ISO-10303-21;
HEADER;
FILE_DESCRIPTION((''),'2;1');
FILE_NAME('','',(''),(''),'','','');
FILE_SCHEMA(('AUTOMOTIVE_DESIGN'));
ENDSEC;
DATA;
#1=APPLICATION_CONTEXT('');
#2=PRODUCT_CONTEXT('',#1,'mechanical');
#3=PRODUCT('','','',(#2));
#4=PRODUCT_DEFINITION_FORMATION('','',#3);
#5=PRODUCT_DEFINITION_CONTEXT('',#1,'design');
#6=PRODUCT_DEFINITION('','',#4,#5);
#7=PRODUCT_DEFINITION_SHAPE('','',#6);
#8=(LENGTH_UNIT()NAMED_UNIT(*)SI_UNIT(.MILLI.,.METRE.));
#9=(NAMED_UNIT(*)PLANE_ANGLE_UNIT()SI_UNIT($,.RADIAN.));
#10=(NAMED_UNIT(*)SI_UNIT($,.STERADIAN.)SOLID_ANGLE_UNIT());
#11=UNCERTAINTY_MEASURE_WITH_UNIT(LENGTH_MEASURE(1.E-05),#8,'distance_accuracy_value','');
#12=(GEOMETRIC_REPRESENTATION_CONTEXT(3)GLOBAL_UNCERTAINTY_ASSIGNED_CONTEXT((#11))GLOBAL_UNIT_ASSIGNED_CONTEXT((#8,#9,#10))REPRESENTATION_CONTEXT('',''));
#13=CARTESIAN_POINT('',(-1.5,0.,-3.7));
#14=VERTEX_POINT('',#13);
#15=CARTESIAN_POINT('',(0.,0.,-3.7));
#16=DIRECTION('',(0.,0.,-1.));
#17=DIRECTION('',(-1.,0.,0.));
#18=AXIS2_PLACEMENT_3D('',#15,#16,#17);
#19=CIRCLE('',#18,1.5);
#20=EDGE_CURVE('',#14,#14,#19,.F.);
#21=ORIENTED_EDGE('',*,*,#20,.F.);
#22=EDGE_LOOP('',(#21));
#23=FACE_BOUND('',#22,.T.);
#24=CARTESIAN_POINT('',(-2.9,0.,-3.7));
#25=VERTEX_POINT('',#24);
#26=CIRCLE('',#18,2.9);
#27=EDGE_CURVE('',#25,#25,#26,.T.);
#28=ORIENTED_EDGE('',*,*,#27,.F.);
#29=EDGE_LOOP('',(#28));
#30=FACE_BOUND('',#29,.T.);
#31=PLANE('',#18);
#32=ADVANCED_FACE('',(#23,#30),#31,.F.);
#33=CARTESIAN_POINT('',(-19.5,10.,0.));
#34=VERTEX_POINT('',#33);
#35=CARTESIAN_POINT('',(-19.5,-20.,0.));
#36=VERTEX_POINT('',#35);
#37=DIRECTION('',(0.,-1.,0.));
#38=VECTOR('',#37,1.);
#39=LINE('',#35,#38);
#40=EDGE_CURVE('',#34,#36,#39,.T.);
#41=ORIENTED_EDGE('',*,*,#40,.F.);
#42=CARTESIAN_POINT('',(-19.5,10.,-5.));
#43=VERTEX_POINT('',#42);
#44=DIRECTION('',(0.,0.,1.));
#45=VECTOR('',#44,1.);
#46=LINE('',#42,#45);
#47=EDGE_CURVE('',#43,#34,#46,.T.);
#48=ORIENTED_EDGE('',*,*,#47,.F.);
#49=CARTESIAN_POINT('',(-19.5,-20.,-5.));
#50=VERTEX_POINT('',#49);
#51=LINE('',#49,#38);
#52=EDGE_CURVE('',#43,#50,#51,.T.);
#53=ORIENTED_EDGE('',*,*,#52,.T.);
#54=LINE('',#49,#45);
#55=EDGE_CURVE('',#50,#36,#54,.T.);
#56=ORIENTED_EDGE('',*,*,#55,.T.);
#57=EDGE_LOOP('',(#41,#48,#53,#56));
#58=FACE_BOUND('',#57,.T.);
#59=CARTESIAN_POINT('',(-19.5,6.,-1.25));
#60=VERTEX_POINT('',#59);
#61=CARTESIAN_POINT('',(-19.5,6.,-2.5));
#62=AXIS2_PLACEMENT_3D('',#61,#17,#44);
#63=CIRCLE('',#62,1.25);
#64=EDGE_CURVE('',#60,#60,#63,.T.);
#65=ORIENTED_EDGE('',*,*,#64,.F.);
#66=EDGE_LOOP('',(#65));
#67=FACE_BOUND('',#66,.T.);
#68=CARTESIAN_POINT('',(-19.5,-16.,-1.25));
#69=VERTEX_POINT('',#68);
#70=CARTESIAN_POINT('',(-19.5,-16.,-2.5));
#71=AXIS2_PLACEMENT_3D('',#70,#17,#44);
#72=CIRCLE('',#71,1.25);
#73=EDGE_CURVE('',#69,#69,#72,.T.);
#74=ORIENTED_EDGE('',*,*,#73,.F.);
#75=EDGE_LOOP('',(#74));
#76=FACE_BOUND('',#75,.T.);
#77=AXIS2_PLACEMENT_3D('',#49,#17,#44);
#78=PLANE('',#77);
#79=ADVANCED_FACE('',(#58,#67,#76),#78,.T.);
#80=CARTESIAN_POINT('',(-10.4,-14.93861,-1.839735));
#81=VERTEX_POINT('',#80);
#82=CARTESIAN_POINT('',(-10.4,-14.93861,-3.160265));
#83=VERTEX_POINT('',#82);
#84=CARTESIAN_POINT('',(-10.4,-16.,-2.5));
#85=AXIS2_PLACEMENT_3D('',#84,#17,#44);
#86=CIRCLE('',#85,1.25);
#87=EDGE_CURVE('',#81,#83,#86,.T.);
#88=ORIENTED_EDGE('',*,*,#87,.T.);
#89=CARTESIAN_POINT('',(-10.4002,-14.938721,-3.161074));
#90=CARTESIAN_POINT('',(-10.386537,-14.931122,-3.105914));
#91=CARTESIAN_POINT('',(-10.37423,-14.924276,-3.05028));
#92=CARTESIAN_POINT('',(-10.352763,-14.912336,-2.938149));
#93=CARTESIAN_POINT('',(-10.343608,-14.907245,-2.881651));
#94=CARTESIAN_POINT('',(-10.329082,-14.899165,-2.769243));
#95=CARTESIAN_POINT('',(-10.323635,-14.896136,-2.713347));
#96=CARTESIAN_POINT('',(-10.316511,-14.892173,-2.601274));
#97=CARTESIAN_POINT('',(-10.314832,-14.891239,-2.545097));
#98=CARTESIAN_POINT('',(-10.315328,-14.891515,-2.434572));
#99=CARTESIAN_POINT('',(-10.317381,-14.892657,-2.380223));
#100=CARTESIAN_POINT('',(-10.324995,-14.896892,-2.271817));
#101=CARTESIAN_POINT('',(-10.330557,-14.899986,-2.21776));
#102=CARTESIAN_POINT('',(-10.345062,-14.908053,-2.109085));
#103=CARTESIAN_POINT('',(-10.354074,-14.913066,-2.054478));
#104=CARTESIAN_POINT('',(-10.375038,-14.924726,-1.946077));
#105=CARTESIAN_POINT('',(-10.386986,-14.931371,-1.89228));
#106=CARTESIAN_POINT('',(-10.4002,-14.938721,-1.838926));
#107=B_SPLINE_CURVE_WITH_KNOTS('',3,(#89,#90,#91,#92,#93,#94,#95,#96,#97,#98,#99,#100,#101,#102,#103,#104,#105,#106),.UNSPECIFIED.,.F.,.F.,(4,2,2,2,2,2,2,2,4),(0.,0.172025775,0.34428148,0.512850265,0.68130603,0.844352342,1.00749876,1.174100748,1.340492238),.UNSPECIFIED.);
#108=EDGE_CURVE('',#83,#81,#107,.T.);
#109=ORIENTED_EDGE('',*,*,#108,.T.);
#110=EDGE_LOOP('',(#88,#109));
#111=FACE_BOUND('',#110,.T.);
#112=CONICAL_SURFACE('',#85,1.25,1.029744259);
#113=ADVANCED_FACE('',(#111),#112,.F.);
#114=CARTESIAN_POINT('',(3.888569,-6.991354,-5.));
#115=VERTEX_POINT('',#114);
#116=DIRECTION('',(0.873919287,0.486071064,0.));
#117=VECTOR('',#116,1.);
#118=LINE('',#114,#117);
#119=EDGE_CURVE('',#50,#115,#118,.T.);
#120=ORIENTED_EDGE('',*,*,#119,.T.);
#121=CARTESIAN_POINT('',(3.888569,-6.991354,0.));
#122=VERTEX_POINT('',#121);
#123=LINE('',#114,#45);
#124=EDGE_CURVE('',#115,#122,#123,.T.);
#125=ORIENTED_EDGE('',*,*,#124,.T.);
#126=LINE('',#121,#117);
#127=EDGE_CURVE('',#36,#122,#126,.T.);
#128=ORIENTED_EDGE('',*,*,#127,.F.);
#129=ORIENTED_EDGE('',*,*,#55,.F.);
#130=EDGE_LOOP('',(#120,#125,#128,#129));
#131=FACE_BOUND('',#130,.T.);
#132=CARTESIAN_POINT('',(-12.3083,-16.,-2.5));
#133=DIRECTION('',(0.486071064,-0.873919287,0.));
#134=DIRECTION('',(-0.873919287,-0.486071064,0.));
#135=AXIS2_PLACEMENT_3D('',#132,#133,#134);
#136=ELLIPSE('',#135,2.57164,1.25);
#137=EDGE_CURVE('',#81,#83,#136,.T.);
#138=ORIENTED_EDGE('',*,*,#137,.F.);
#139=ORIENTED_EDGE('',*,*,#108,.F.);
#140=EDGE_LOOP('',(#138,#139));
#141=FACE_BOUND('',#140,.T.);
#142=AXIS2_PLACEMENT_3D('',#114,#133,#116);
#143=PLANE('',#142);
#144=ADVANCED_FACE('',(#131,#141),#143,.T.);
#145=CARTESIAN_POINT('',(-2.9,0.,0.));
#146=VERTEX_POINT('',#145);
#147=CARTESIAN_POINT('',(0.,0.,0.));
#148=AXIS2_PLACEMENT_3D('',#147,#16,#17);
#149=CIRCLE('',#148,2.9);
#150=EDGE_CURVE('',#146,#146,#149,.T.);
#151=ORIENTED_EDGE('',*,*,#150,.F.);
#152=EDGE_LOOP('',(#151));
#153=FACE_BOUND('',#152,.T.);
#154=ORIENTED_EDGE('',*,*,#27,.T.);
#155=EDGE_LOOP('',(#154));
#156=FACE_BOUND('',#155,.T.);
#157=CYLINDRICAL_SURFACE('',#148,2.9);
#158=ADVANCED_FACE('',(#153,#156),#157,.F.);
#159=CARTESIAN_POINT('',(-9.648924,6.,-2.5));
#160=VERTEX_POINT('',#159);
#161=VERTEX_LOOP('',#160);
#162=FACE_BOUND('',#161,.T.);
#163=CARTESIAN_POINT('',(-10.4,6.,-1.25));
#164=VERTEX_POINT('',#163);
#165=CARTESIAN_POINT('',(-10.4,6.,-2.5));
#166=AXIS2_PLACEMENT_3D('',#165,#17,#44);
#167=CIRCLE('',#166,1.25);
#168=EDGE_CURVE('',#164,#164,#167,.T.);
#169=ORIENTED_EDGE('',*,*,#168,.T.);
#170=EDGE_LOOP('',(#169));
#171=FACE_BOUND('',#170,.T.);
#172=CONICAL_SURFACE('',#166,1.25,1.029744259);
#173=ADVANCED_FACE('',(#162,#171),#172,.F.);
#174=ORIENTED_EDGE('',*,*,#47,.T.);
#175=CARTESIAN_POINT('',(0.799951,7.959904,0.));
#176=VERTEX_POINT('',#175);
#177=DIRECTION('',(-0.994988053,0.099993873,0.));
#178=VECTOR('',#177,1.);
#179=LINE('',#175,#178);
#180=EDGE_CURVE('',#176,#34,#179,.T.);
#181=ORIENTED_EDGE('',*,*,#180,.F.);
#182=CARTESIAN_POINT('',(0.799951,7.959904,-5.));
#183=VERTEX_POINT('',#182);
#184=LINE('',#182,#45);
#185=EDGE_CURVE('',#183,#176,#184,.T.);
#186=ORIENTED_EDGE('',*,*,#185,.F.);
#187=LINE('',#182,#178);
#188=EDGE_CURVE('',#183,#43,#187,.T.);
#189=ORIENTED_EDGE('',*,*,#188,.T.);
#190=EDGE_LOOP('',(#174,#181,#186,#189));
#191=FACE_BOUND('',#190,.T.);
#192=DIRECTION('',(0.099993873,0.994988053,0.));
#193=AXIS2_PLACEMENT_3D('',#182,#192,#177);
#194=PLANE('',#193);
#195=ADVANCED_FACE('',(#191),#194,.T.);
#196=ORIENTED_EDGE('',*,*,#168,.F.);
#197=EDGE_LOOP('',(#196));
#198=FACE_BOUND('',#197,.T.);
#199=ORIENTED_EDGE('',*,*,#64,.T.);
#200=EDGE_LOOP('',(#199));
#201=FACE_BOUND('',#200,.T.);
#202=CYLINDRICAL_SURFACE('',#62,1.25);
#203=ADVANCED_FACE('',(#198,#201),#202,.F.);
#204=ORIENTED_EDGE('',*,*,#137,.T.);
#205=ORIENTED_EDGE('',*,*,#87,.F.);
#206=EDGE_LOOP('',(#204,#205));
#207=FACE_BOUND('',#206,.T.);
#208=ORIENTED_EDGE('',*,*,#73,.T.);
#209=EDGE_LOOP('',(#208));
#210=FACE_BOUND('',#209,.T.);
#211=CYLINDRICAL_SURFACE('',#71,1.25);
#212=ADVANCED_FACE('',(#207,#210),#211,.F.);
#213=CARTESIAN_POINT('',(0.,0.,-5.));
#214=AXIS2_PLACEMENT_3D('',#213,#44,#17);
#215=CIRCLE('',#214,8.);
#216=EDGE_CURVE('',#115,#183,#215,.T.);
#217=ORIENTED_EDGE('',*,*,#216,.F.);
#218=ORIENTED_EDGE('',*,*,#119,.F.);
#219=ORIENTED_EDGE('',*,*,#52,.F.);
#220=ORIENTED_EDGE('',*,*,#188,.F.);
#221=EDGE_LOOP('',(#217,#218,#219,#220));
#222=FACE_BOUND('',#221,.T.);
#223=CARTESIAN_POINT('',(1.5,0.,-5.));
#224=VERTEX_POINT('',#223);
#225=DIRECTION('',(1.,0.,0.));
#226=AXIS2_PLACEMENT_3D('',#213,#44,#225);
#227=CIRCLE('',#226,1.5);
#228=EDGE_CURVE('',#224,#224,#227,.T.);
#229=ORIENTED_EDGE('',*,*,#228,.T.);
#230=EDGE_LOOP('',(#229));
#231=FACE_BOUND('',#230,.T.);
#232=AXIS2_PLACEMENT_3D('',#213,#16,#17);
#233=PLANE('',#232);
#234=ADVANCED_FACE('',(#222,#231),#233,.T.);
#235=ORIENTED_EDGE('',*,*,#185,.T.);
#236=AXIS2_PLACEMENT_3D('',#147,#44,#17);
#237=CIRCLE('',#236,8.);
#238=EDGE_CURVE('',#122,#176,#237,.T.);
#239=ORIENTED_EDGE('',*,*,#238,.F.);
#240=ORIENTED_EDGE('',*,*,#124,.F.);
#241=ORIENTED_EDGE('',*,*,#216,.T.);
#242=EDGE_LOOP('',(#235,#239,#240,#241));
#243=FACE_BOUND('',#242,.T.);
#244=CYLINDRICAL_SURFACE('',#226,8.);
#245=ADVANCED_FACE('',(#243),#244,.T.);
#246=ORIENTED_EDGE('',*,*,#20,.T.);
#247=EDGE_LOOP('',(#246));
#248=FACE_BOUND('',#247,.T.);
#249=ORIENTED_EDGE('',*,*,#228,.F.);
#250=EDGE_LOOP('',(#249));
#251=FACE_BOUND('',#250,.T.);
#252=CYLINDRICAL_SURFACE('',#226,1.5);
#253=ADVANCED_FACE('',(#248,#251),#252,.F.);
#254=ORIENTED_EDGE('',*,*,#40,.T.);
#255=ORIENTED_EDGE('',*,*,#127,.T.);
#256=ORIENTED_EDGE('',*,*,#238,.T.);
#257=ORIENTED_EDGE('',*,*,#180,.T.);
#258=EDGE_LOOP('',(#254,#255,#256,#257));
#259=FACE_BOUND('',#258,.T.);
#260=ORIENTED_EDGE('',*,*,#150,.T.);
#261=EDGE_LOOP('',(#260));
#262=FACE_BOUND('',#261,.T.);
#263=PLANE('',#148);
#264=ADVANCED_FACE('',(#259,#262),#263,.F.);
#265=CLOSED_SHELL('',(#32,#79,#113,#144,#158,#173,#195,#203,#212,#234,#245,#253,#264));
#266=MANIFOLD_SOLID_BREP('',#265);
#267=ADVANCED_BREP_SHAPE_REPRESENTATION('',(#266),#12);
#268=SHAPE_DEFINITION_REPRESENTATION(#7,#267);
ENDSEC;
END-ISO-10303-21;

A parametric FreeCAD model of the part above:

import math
import FreeCAD as App
import Part
import Sketcher
Q = App.Units.Quantity

doc = App.newDocument("Part")
params = doc.addObject("Spreadsheet::Sheet", "Params")
for row, (alias, value) in enumerate([
    ("sketch1_diameter", "3 mm"),
    ("sketch1_radius", "8 mm"),
    ("sketch1_height", "30 mm"),
    ("pad1_length", "5 mm"),
    ("sketch2_diameter", "5.8 mm"),
    ("sketch3_diameter", "2.5 mm"),
    ("hole_diameter", "2.5 mm"),
    ("hole_depth", "9.1 mm"),
], start=1):
    params.set(f"A{row}", alias)
    params.set(f"B{row}", "=" + value)
    params.setAlias(f"B{row}", alias)

body = doc.addObject("PartDesign::Body", "Body")

sketch1 = body.newObject("Sketcher::SketchObject", "Sketch")
sketch1.AttachmentSupport = (doc.getObject("XY_Plane"), [""])
sketch1.MapMode = "FlatFace"
sketch1.addGeometry([
    Part.LineSegment(App.Vector(0.8, 8, 0), App.Vector(-19.5, 10, 0)),
    Part.LineSegment(App.Vector(-19.5, 10, 0), App.Vector(-19.5, -20, 0)),
    Part.LineSegment(App.Vector(-19.5, -20, 0), App.Vector(3.9, -7, 0)),
    Part.ArcOfCircle(Part.Circle(App.Vector(0, 0, 0), App.Vector(0, 0, 1), 8), math.radians(-61), math.radians(84)),
    Part.Circle(App.Vector(0, 0, 0), App.Vector(0, 0, 1), 1.5),
], False)
sketch1.addConstraint([
    Sketcher.Constraint("Coincident", 0, 2, 1, 1),
    Sketcher.Constraint("Coincident", 1, 2, 2, 1),
    Sketcher.Constraint("Tangent", 2, 2, 3, 1),
    Sketcher.Constraint("Tangent", 3, 2, 0, 1),
    Sketcher.Constraint("Vertical", 1),
    Sketcher.Constraint("Coincident", 3, 3, -1, 1),
    Sketcher.Constraint("Coincident", 4, 3, -1, 1),
    Sketcher.Constraint("Diameter", 4, Q("3 mm")),
    Sketcher.Constraint("Radius", 3, Q("8 mm")),
    Sketcher.Constraint("DistanceY", 1, 2, 1, 1, Q("30 mm")),
    Sketcher.Constraint("DistanceY", -1, 1, 0, 2, Q("10 mm")),
    Sketcher.Constraint("DistanceX", 0, 2, -1, 1, Q("19.5 mm")),
])
sketch1.setExpression("Constraints[7]", "Params.sketch1_diameter")
sketch1.setExpression("Constraints[8]", "Params.sketch1_radius")
sketch1.setExpression("Constraints[9]", "Params.sketch1_height")
pad1 = body.newObject("PartDesign::Pad", "Pad")
pad1.Profile = sketch1
pad1.setExpression("Length", "Params.pad1_length")
pad1.Reversed = True

sketch2 = body.newObject("Sketcher::SketchObject", "Sketch001")
sketch2.AttachmentSupport = (doc.getObject("XY_Plane"), [""])
sketch2.MapMode = "FlatFace"
sketch2.AttachmentOffset = App.Placement(App.Vector(0, 0, -3.7), App.Rotation())
sketch2.addGeometry(Part.Circle(App.Vector(0, 0, 0), App.Vector(0, 0, 1), 2.9), False)
sketch2.addConstraint([
    Sketcher.Constraint("Coincident", 0, 3, -1, 1),
    Sketcher.Constraint("Diameter", 0, Q("5.8 mm")),
])
sketch2.setExpression("Constraints[1]", "Params.sketch2_diameter")
pocket1 = body.newObject("PartDesign::Pocket", "Pocket")
pocket1.Profile = sketch2
pocket1.Type = "ThroughAll"
pocket1.Reversed = True

sketch3 = body.newObject("Sketcher::SketchObject", "Sketch002")
sketch3.AttachmentSupport = (doc.getObject("YZ_Plane"), [""])
sketch3.MapMode = "FlatFace"
sketch3.AttachmentOffset = App.Placement(App.Vector(0, 0, -19.5), App.Rotation())
sketch3.addGeometry([
    Part.Circle(App.Vector(6, -2.5, 0), App.Vector(0, 0, 1), 1.2),
    Part.Circle(App.Vector(-16, -2.5, 0), App.Vector(0, 0, 1), 1.2),
], False)
sketch3.addConstraint([
    Sketcher.Constraint("Equal", 0, 1),
    Sketcher.Constraint("Horizontal", 0, 3, 1, 3),
    Sketcher.Constraint("Diameter", 0, Q("2.5 mm")),
    Sketcher.Constraint("DistanceX", -1, 1, 0, 3, Q("6 mm")),
    Sketcher.Constraint("DistanceX", 1, 3, -1, 1, Q("16 mm")),
    Sketcher.Constraint("DistanceY", 0, 3, -1, 1, Q("2.5 mm")),
])
sketch3.setExpression("Constraints[2]", "Params.sketch3_diameter")
doc.recompute()
hole = body.newObject("PartDesign::Hole", "Hole")
hole.Profile = sketch3
hole.ThreadType = "None"
hole.setExpression("Diameter", "Params.hole_diameter")
hole.DepthType = "Dimension"
hole.setExpression("Depth", "Params.hole_depth")
hole.DrillPoint = "Angled"
hole.DrillPointAngle = 118
hole.Reversed = True

doc.recompute()
